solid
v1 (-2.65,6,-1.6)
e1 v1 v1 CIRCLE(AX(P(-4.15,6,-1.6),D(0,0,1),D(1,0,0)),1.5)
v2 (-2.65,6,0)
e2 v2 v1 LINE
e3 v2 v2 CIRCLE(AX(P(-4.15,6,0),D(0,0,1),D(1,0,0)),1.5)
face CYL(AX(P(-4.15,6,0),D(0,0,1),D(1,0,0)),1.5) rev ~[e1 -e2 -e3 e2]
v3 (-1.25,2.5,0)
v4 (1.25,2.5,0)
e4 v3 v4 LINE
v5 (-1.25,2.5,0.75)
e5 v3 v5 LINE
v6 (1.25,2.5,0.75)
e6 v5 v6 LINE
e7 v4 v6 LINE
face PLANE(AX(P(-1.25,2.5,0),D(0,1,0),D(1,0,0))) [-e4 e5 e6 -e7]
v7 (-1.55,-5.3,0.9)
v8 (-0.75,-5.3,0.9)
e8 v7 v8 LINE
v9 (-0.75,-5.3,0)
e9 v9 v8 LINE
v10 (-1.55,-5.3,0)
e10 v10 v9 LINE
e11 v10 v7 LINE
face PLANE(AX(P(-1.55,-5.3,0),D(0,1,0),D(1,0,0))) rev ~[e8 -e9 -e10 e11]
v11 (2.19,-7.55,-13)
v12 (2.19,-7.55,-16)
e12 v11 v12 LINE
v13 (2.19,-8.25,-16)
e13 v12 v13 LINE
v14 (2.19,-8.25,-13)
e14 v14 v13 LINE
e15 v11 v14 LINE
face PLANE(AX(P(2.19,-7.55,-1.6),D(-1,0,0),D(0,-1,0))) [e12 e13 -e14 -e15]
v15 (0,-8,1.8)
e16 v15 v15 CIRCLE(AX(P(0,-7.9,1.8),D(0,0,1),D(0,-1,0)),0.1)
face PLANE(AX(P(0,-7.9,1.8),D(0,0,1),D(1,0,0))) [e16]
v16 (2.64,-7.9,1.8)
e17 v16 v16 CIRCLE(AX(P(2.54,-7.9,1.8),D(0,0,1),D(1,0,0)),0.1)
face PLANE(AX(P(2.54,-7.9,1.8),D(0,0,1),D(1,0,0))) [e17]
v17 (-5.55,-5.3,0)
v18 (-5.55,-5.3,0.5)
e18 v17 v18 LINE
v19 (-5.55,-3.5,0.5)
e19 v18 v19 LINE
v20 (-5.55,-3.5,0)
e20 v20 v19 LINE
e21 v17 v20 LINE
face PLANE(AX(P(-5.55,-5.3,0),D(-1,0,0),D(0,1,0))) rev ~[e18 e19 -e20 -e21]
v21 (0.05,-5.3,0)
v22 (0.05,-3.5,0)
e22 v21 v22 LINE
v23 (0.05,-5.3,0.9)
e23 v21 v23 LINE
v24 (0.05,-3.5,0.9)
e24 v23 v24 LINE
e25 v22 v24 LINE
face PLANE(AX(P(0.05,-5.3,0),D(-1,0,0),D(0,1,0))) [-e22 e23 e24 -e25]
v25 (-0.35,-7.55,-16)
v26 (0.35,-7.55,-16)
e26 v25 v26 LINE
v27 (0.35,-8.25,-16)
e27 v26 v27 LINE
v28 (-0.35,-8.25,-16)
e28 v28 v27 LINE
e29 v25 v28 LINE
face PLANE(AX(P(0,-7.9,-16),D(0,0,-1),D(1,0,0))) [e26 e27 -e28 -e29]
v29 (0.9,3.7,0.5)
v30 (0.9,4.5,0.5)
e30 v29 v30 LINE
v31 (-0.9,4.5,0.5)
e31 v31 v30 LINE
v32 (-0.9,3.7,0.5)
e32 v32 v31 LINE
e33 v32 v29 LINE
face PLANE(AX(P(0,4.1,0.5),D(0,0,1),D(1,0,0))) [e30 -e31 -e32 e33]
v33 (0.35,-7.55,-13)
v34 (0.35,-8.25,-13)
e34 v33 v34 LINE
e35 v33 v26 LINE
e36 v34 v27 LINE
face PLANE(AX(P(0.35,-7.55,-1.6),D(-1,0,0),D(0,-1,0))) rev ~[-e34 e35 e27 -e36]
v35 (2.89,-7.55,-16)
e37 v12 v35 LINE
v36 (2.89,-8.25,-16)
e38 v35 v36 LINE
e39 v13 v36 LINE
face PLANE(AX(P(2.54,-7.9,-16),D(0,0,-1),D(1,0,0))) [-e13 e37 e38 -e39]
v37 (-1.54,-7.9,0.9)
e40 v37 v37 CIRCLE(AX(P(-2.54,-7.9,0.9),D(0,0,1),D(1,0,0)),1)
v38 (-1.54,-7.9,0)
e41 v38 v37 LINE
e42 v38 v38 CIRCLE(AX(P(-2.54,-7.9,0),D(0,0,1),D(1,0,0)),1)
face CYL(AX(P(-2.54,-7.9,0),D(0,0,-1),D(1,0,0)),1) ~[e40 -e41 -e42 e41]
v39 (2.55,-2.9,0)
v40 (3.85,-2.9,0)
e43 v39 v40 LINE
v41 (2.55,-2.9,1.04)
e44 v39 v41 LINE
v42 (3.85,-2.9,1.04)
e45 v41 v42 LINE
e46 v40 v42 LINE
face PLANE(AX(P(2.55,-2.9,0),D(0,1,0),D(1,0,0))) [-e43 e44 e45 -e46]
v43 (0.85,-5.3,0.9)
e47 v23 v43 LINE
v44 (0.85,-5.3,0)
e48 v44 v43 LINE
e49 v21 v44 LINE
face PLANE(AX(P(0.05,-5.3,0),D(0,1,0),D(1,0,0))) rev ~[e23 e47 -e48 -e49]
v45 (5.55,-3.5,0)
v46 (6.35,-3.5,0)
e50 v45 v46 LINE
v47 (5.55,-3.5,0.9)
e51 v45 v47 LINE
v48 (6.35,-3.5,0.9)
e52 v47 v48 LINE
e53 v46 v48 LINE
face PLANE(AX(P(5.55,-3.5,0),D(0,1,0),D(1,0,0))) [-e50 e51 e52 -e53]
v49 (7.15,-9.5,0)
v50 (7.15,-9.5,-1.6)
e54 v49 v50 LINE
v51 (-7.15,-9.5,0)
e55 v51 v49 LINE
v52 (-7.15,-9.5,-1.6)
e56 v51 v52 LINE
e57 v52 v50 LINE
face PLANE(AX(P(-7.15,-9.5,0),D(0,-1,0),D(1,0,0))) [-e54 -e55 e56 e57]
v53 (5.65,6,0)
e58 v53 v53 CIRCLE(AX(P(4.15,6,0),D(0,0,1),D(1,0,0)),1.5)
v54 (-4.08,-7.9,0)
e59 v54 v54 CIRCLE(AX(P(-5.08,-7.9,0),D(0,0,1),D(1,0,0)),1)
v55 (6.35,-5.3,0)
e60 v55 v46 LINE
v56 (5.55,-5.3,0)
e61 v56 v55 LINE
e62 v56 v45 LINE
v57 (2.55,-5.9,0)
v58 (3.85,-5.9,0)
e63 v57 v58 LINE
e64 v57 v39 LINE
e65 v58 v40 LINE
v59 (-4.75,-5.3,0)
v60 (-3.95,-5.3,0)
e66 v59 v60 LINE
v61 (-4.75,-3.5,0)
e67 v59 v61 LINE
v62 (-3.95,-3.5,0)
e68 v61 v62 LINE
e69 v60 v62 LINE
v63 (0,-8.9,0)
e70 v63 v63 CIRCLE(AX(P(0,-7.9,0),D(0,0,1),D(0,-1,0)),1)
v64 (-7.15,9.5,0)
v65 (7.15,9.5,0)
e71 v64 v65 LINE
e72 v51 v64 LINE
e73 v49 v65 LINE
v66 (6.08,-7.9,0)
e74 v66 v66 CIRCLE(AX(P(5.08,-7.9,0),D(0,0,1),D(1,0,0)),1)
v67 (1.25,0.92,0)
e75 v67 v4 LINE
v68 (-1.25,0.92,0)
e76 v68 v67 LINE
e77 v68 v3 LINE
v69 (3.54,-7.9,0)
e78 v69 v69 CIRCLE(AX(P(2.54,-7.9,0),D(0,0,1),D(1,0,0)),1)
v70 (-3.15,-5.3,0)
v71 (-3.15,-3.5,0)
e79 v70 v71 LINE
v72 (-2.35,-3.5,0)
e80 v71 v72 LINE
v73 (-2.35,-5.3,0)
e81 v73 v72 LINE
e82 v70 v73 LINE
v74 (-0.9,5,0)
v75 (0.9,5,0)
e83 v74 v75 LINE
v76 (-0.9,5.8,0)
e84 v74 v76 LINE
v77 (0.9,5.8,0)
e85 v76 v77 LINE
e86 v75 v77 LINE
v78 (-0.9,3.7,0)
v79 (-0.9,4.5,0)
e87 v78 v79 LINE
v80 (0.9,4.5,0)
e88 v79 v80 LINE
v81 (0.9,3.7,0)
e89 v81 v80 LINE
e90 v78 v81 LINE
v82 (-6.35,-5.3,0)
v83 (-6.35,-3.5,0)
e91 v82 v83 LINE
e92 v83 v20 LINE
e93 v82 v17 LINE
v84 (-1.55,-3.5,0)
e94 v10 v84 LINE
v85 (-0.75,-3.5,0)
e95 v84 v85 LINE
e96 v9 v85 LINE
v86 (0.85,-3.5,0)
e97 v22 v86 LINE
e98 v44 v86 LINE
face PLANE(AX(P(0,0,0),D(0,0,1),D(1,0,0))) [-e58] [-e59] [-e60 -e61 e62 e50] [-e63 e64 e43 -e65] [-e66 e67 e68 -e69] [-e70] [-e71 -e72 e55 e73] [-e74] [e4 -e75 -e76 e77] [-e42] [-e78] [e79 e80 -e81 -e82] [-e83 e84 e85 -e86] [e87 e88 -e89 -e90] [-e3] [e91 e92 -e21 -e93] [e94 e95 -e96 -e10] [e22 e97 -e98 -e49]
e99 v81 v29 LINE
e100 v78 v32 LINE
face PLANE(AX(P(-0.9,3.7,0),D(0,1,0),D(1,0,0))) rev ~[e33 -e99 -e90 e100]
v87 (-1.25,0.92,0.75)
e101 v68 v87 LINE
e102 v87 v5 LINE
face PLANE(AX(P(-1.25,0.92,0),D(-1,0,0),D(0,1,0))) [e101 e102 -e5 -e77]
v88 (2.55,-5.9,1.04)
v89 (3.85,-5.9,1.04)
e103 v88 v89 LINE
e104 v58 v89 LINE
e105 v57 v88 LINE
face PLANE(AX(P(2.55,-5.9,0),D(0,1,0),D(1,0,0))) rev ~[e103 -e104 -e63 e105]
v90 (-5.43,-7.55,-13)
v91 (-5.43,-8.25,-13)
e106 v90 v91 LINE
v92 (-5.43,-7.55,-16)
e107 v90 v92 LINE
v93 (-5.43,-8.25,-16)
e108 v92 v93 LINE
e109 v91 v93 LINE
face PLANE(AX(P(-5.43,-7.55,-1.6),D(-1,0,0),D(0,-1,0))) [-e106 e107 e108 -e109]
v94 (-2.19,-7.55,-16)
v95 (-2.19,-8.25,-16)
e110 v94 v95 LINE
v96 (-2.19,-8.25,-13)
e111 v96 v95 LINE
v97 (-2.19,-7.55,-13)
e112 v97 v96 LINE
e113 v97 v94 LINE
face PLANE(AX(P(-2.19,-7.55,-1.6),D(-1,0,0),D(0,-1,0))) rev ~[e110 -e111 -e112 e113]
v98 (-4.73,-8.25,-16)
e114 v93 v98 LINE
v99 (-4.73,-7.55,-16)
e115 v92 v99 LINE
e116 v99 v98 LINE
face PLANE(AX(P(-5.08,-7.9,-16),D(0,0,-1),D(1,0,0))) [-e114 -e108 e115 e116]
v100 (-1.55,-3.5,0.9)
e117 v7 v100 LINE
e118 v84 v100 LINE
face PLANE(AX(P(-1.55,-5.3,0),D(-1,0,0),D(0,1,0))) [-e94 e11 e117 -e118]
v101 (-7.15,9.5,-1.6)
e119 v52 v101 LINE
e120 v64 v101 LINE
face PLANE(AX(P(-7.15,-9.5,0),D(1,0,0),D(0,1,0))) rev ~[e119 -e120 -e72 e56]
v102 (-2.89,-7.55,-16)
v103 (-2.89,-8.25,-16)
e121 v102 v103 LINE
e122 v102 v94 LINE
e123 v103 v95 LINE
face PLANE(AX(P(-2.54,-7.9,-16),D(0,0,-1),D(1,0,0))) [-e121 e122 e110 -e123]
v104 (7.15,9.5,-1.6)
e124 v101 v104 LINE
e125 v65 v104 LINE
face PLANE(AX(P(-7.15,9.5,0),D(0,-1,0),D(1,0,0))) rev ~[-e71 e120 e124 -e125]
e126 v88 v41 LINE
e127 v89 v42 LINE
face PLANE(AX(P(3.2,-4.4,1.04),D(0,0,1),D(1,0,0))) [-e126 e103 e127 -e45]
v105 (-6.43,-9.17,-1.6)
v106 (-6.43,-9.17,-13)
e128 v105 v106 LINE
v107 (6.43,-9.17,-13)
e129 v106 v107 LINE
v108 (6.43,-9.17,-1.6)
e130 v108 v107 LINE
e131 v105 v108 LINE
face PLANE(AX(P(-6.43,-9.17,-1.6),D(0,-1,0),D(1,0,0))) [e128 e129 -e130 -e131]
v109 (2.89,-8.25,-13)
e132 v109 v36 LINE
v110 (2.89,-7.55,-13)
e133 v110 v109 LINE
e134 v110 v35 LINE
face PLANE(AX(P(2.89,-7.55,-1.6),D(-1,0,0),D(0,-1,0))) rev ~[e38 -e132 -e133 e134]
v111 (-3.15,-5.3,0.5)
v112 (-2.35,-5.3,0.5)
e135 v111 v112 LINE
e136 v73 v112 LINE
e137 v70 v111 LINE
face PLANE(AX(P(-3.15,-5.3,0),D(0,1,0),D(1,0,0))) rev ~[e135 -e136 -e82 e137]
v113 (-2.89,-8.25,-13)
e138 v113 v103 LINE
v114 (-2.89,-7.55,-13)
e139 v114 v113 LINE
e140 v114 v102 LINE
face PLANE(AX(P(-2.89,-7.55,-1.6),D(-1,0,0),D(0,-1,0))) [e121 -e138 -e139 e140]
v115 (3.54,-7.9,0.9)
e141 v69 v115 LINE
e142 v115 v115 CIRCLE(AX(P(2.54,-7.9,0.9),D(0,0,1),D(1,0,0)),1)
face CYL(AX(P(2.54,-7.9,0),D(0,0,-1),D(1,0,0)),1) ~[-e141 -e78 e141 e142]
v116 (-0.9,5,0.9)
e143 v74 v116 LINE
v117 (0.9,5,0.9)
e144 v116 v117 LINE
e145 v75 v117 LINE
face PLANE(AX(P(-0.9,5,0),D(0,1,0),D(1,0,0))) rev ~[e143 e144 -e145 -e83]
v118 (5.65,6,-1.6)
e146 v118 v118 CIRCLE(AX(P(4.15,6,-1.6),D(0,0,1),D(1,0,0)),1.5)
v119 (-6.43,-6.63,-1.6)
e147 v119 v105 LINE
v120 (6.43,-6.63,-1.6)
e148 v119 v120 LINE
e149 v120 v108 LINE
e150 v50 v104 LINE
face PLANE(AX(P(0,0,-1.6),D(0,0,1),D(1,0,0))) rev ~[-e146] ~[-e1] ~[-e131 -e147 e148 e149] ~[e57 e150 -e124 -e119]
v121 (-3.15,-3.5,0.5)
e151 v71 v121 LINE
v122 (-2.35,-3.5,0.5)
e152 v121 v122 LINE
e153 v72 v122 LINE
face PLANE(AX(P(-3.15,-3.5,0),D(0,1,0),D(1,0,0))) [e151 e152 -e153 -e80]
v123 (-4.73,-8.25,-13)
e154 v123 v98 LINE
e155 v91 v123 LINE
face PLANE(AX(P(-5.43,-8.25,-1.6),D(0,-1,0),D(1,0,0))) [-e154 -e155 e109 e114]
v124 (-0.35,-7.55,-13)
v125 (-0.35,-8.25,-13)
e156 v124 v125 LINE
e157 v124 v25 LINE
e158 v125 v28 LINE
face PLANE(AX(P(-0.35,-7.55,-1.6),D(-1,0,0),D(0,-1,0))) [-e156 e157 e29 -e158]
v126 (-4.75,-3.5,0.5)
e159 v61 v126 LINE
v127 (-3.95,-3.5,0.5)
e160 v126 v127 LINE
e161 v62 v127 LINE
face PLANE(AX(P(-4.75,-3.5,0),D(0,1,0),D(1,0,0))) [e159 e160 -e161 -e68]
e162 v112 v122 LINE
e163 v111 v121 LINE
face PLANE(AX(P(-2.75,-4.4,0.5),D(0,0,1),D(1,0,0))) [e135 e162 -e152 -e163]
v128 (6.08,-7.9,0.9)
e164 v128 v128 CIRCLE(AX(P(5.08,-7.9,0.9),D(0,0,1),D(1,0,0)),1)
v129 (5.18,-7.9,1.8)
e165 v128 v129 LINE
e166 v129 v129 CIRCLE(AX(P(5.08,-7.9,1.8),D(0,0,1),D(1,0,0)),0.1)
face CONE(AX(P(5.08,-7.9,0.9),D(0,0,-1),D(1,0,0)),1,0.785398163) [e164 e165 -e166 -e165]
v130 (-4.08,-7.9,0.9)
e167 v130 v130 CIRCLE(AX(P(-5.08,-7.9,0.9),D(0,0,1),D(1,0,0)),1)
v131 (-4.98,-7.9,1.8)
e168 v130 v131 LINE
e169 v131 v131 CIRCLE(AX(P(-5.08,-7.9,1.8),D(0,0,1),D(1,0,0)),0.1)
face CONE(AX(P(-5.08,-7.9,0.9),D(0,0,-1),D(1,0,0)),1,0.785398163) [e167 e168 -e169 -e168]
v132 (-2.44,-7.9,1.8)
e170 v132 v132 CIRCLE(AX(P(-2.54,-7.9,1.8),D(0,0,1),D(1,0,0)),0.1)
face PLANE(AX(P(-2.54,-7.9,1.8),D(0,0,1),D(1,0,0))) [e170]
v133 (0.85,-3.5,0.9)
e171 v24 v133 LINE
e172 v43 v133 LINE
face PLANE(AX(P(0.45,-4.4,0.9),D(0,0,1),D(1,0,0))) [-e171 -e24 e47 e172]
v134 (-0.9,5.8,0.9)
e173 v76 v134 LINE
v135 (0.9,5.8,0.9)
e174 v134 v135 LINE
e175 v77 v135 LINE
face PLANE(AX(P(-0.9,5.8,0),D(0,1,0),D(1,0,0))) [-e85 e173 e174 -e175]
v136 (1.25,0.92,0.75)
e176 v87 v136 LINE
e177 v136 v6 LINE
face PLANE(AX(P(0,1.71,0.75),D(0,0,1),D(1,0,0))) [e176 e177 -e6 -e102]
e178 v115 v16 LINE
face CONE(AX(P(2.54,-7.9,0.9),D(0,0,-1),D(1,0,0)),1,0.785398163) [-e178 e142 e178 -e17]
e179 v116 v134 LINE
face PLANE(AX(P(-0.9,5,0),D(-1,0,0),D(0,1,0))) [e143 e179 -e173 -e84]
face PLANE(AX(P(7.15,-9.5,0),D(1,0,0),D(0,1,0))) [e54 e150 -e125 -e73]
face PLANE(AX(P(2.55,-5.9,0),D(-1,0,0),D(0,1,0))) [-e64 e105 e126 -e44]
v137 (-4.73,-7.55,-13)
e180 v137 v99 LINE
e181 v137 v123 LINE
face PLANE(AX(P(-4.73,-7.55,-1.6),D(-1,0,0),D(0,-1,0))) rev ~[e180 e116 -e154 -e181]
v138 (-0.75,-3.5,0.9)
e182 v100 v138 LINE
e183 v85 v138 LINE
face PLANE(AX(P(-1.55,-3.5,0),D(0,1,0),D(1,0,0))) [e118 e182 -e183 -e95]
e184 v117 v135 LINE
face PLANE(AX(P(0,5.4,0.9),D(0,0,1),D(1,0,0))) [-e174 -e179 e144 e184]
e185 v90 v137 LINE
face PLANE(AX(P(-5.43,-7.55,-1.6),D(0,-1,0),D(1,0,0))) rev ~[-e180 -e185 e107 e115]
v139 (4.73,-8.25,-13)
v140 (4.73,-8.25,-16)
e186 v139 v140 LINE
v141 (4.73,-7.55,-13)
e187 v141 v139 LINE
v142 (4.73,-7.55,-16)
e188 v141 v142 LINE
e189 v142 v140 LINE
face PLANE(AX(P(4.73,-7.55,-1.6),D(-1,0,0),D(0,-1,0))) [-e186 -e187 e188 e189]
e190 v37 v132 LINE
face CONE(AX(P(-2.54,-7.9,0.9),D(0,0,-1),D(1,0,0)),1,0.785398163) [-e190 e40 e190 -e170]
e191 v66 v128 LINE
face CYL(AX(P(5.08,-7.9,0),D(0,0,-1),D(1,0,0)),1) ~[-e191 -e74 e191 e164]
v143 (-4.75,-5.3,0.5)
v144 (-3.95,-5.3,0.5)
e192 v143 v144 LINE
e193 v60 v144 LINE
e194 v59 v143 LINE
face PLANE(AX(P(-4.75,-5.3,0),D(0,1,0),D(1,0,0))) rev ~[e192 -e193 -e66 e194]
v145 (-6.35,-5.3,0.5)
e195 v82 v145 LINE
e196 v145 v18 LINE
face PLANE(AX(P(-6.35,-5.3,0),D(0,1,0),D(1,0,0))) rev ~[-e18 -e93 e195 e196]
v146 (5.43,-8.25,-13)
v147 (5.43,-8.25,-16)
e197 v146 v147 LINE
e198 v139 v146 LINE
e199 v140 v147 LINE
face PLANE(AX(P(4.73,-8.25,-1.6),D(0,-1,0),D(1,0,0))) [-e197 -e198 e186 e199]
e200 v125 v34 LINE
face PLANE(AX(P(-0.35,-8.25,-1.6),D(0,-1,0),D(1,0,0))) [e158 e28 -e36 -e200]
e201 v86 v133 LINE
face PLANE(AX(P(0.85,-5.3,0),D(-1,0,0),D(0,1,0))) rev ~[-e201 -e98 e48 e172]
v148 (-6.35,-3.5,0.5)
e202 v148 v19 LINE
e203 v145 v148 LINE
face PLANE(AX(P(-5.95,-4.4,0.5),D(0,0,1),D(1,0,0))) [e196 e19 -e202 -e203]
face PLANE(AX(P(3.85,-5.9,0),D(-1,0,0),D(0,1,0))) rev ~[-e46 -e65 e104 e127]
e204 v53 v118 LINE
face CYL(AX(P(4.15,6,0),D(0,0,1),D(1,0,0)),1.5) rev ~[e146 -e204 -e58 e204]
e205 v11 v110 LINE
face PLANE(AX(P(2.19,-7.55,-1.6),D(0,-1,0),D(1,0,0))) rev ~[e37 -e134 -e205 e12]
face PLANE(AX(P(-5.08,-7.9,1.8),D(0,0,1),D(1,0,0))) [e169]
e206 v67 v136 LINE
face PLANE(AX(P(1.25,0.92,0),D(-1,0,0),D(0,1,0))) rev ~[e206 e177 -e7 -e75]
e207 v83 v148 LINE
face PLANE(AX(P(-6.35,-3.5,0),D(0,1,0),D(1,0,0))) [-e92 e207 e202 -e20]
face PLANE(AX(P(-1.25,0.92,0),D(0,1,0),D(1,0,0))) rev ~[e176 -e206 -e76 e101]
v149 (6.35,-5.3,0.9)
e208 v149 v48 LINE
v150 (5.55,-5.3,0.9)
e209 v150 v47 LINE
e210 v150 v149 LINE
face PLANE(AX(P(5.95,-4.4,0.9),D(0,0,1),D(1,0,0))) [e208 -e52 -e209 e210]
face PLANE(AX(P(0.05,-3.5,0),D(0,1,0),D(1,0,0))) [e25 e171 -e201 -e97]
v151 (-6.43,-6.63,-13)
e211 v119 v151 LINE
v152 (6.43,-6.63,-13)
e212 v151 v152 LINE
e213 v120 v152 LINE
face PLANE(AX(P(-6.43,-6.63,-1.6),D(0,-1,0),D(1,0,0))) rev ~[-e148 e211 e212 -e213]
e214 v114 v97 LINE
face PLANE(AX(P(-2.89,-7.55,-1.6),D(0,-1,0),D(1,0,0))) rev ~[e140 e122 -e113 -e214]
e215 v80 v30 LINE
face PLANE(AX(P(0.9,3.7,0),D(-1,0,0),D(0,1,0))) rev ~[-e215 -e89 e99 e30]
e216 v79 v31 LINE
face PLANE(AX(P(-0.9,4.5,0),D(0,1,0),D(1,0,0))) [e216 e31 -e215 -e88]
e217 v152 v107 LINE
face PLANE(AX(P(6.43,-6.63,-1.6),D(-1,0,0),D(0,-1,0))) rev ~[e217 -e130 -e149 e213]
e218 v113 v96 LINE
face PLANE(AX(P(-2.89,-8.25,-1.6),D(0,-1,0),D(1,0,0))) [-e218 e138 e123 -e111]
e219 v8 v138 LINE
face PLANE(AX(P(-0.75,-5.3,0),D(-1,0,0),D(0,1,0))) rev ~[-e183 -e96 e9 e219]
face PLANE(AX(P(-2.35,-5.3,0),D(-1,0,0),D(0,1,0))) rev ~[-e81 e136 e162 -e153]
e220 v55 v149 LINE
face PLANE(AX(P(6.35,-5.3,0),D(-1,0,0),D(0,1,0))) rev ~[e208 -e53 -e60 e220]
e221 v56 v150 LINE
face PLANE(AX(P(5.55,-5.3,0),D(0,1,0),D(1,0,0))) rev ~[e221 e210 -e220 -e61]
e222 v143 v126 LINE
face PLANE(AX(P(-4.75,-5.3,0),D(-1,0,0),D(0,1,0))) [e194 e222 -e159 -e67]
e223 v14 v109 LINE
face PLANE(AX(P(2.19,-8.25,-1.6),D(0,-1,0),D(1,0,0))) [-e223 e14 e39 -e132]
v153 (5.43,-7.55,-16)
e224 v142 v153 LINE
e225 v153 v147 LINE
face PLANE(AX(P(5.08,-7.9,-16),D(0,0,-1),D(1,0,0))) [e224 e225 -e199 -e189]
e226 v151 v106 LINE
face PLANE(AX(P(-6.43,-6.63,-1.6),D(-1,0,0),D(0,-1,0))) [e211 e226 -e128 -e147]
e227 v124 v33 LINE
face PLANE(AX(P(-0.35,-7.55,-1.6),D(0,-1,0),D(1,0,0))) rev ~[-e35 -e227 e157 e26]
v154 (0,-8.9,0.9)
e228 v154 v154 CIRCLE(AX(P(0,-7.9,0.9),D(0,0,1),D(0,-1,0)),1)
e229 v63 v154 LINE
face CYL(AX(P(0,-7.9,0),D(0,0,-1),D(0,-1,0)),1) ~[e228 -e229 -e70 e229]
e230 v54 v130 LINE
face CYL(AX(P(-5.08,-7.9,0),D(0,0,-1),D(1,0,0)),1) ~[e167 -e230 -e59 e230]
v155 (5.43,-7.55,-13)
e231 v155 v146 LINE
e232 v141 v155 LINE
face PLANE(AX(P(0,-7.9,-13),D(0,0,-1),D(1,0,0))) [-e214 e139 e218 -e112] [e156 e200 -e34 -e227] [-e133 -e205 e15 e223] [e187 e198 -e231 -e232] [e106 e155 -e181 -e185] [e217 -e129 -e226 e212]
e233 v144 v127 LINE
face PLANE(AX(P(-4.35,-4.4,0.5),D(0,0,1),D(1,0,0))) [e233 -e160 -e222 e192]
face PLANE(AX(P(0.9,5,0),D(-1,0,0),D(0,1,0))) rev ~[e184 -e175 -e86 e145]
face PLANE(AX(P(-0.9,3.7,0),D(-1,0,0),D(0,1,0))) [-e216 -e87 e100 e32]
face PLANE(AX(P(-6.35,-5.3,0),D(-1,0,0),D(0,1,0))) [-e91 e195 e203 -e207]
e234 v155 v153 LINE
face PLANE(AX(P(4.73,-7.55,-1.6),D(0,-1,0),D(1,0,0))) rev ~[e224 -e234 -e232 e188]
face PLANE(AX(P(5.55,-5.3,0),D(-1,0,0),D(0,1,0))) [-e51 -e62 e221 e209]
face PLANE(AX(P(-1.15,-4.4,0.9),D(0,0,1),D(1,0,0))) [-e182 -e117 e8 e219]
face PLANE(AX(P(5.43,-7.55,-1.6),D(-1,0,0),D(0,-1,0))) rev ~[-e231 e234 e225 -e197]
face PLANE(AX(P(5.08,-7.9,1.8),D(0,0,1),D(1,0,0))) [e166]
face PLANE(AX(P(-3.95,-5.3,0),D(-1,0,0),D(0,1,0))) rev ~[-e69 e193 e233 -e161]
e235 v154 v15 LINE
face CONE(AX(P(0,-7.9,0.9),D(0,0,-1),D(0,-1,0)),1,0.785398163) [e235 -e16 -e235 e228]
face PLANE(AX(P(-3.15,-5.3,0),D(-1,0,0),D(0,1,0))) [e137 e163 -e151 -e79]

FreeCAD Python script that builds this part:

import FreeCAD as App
import Part
import Sketcher
from FreeCAD import Vector


def edges_at(feature, points):
    """Names of the edges that pass closest to the given points."""
    edges = feature.Shape.Edges
    near = lambda p: min(range(len(edges)), key=lambda i: edges[i].distToShape(Part.Vertex(*p))[0])
    return sorted({f"Edge{near(p) + 1}" for p in points})

doc = App.newDocument("Part")
body = doc.addObject("PartDesign::Body", "Body")

# Sketch on XY plane
sketch1 = doc.addObject("Sketcher::SketchObject", "Sketch")
body.addObject(sketch1)
sketch1.AttachmentSupport = (doc.XY_Plane, [""])
sketch1.MapMode = "FlatFace"
sketch1.addGeometry([
    Part.LineSegment(Vector(-7.15, 9.5, 0), Vector(-7.15, -9.5, 0)),  # 0
    Part.LineSegment(Vector(-7.15, -9.5, 0), Vector(7.15, -9.5, 0)),  # 1
    Part.LineSegment(Vector(7.15, -9.5, 0), Vector(7.15, 9.5, 0)),  # 2
    Part.LineSegment(Vector(7.15, 9.5, 0), Vector(-7.15, 9.5, 0)),  # 3
    Part.Circle(Vector(-4.15, 6, 0), Vector(0, 0, 1), 1.5),  # 4
    Part.Circle(Vector(4.15, 6, 0), Vector(0, 0, 1), 1.5),  # 5
], False)
sketch1.addConstraint([
    Sketcher.Constraint("Coincident", 0, 2, 1, 1),
    Sketcher.Constraint("Coincident", 1, 2, 2, 1),
    Sketcher.Constraint("Coincident", 2, 2, 3, 1),
    Sketcher.Constraint("Coincident", 3, 2, 0, 1),
    Sketcher.Constraint("Vertical", 0),
    Sketcher.Constraint("Horizontal", 1),
    Sketcher.Constraint("Vertical", 2),
    Sketcher.Constraint("Horizontal", 3),
    Sketcher.Constraint("Equal", 4, 5),
    Sketcher.Constraint("Symmetric", 0, 2, 2, 2, -1, 1),
    Sketcher.Constraint("Symmetric", 4, 3, 5, 3, -2),
    Sketcher.Constraint("Diameter", 4, 3.0),
    Sketcher.Constraint("DistanceY", 0, 2, 0, 1, 19.0),
    Sketcher.Constraint("DistanceX", 1, 1, 1, 2, 14.3),
    Sketcher.Constraint("DistanceY", -1, 1, 4, 3, 6.0),
    Sketcher.Constraint("DistanceX", 0, 2, 4, 3, 3.0),
])
pad1 = doc.addObject("PartDesign::Pad", "Pad")
body.addObject(pad1)
pad1.Profile = sketch1
pad1.Length = 1.6
pad1.Reversed = True

# Sketch on XY plane
sketch2 = doc.addObject("Sketcher::SketchObject", "Sketch001")
body.addObject(sketch2)
sketch2.AttachmentSupport = (doc.XY_Plane, [""])
sketch2.MapMode = "FlatFace"
sketch2.addGeometry([
    Part.LineSegment(Vector(-1.25, 2.5, 0), Vector(-1.25, 0.92, 0)),
    Part.LineSegment(Vector(-1.25, 0.92, 0), Vector(1.25, 0.92, 0)),
    Part.LineSegment(Vector(1.25, 0.92, 0), Vector(1.25, 2.5, 0)),
    Part.LineSegment(Vector(1.25, 2.5, 0), Vector(-1.25, 2.5, 0)),
], False)
sketch2.addConstraint([
    Sketcher.Constraint("Coincident", 0, 2, 1, 1),
    Sketcher.Constraint("Coincident", 1, 2, 2, 1),
    Sketcher.Constraint("Coincident", 2, 2, 3, 1),
    Sketcher.Constraint("Coincident", 3, 2, 0, 1),
    Sketcher.Constraint("Vertical", 0),
    Sketcher.Constraint("Horizontal", 1),
    Sketcher.Constraint("Vertical", 2),
    Sketcher.Constraint("Horizontal", 3),
    Sketcher.Constraint("DistanceX", 1, 1, 1, 2, 2.5),
    Sketcher.Constraint("DistanceY", 0, 2, 0, 1, 1.58),
    Sketcher.Constraint("DistanceY", -1, 1, 2, 2, 2.5),
    Sketcher.Constraint("DistanceX", 0, 2, -1, 1, 1.25),
])
pad2 = doc.addObject("PartDesign::Pad", "Pad001")
body.addObject(pad2)
pad2.Profile = sketch2
pad2.Length = 0.75

# Sketch on XY plane
sketch3 = doc.addObject("Sketcher::SketchObject", "Sketch002")
body.addObject(sketch3)
sketch3.AttachmentSupport = (doc.XY_Plane, [""])
sketch3.MapMode = "FlatFace"
sketch3.addGeometry([
    Part.LineSegment(Vector(-0.9, 5.8, 0), Vector(-0.9, 5, 0)),  # 0
    Part.LineSegment(Vector(-0.9, 5, 0), Vector(0.9, 5, 0)),  # 1
    Part.LineSegment(Vector(0.9, 5, 0), Vector(0.9, 5.8, 0)),  # 2
    Part.LineSegment(Vector(0.9, 5.8, 0), Vector(-0.9, 5.8, 0)),  # 3
    Part.LineSegment(Vector(5.55, -3.5, 0), Vector(5.55, -5.3, 0)),  # 4
    Part.LineSegment(Vector(5.55, -5.3, 0), Vector(6.35, -5.3, 0)),  # 5
    Part.LineSegment(Vector(6.35, -5.3, 0), Vector(6.35, -3.5, 0)),  # 6
    Part.LineSegment(Vector(6.35, -3.5, 0), Vector(5.55, -3.5, 0)),  # 7
    Part.LineSegment(Vector(0.05, -3.5, 0), Vector(0.05, -5.3, 0)),  # 8
    Part.LineSegment(Vector(0.05, -5.3, 0), Vector(0.85, -5.3, 0)),  # 9
    Part.LineSegment(Vector(0.85, -5.3, 0), Vector(0.85, -3.5, 0)),  # 10
    Part.LineSegment(Vector(0.85, -3.5, 0), Vector(0.05, -3.5, 0)),  # 11
    Part.LineSegment(Vector(-1.55, -3.5, 0), Vector(-1.55, -5.3, 0)),  # 12
    Part.LineSegment(Vector(-1.55, -5.3, 0), Vector(-0.75, -5.3, 0)),  # 13
    Part.LineSegment(Vector(-0.75, -5.3, 0), Vector(-0.75, -3.5, 0)),  # 14
    Part.LineSegment(Vector(-0.75, -3.5, 0), Vector(-1.55, -3.5, 0)),  # 15
], False)
sketch3.addConstraint([
    Sketcher.Constraint("Coincident", 0, 2, 1, 1),
    Sketcher.Constraint("Coincident", 1, 2, 2, 1),
    Sketcher.Constraint("Coincident", 2, 2, 3, 1),
    Sketcher.Constraint("Coincident", 3, 2, 0, 1),
    Sketcher.Constraint("Coincident", 4, 2, 5, 1),
    Sketcher.Constraint("Coincident", 5, 2, 6, 1),
    Sketcher.Constraint("Coincident", 6, 2, 7, 1),
    Sketcher.Constraint("Coincident", 7, 2, 4, 1),
    Sketcher.Constraint("Coincident", 8, 2, 9, 1),
    Sketcher.Constraint("Coincident", 9, 2, 10, 1),
    Sketcher.Constraint("Coincident", 10, 2, 11, 1),
    Sketcher.Constraint("Coincident", 11, 2, 8, 1),
    Sketcher.Constraint("Coincident", 12, 2, 13, 1),
    Sketcher.Constraint("Coincident", 13, 2, 14, 1),
    Sketcher.Constraint("Coincident", 14, 2, 15, 1),
    Sketcher.Constraint("Coincident", 15, 2, 12, 1),
    Sketcher.Constraint("Vertical", 0),
    Sketcher.Constraint("Horizontal", 1),
    Sketcher.Constraint("Vertical", 2),
    Sketcher.Constraint("Horizontal", 3),
    Sketcher.Constraint("Vertical", 4),
    Sketcher.Constraint("Horizontal", 5),
    Sketcher.Constraint("Vertical", 6),
    Sketcher.Constraint("Horizontal", 7),
    Sketcher.Constraint("Vertical", 8),
    Sketcher.Constraint("Horizontal", 9),
    Sketcher.Constraint("Vertical", 10),
    Sketcher.Constraint("Horizontal", 11),
    Sketcher.Constraint("Vertical", 12),
    Sketcher.Constraint("Horizontal", 13),
    Sketcher.Constraint("Vertical", 14),
    Sketcher.Constraint("Horizontal", 15),
    Sketcher.Constraint("Horizontal", 5, 2, 8, 2),
    Sketcher.Constraint("Horizontal", 7, 2, 10, 2),
    Sketcher.Constraint("Horizontal", 9, 2, 12, 2),
    Sketcher.Constraint("Horizontal", 11, 2, 14, 2),
    Sketcher.Constraint("Equal", 7, 9),
    Sketcher.Constraint("Equal", 11, 13),
    Sketcher.Constraint("Equal", 15, 0),
    Sketcher.Constraint("Equal", 3, 4),
    Sketcher.Constraint("DistanceX", 1, 1, 1, 2, 1.8),
    Sketcher.Constraint("DistanceX", 5, 1, 5, 2, 0.8),
    Sketcher.Constraint("DistanceY", -1, 1, 0, 2, 5.0),
    Sketcher.Constraint("DistanceX", 0, 2, -1, 1, 0.9),
    Sketcher.Constraint("DistanceY", 4, 2, -1, 1, 5.3),
    Sketcher.Constraint("DistanceX", 8, 2, 4, 2, 5.5),
    Sketcher.Constraint("DistanceX", 12, 2, 8, 2, 1.6),
    Sketcher.Constraint("DistanceX", -1, 1, 4, 2, 5.55),
])
pad3 = doc.addObject("PartDesign::Pad", "Pad002")
body.addObject(pad3)
pad3.Profile = sketch3
pad3.Length = 0.9

# Sketch on XY plane
sketch4 = doc.addObject("Sketcher::SketchObject", "Sketch003")
body.addObject(sketch4)
sketch4.AttachmentSupport = (doc.XY_Plane, [""])
sketch4.MapMode = "FlatFace"
sketch4.addGeometry([
    Part.LineSegment(Vector(-0.9, 4.5, 0), Vector(-0.9, 3.7, 0)),  # 0
    Part.LineSegment(Vector(-0.9, 3.7, 0), Vector(0.9, 3.7, 0)),  # 1
    Part.LineSegment(Vector(0.9, 3.7, 0), Vector(0.9, 4.5, 0)),  # 2
    Part.LineSegment(Vector(0.9, 4.5, 0), Vector(-0.9, 4.5, 0)),  # 3
    Part.LineSegment(Vector(-3.15, -3.5, 0), Vector(-3.15, -5.3, 0)),  # 4
    Part.LineSegment(Vector(-3.15, -5.3, 0), Vector(-2.35, -5.3, 0)),  # 5
    Part.LineSegment(Vector(-2.35, -5.3, 0), Vector(-2.35, -3.5, 0)),  # 6
    Part.LineSegment(Vector(-2.35, -3.5, 0), Vector(-3.15, -3.5, 0)),  # 7
    Part.LineSegment(Vector(-4.75, -3.5, 0), Vector(-4.75, -5.3, 0)),  # 8
    Part.LineSegment(Vector(-4.75, -5.3, 0), Vector(-3.95, -5.3, 0)),  # 9
    Part.LineSegment(Vector(-3.95, -5.3, 0), Vector(-3.95, -3.5, 0)),  # 10
    Part.LineSegment(Vector(-3.95, -3.5, 0), Vector(-4.75, -3.5, 0)),  # 11
    Part.LineSegment(Vector(-6.35, -3.5, 0), Vector(-6.35, -5.3, 0)),  # 12
    Part.LineSegment(Vector(-6.35, -5.3, 0), Vector(-5.55, -5.3, 0)),  # 13
    Part.LineSegment(Vector(-5.55, -5.3, 0), Vector(-5.55, -3.5, 0)),  # 14
    Part.LineSegment(Vector(-5.55, -3.5, 0), Vector(-6.35, -3.5, 0)),  # 15
], False)
sketch4.addConstraint([
    Sketcher.Constraint("Coincident", 0, 2, 1, 1),
    Sketcher.Constraint("Coincident", 1, 2, 2, 1),
    Sketcher.Constraint("Coincident", 2, 2, 3, 1),
    Sketcher.Constraint("Coincident", 3, 2, 0, 1),
    Sketcher.Constraint("Coincident", 4, 2, 5, 1),
    Sketcher.Constraint("Coincident", 5, 2, 6, 1),
    Sketcher.Constraint("Coincident", 6, 2, 7, 1),
    Sketcher.Constraint("Coincident", 7, 2, 4, 1),
    Sketcher.Constraint("Coincident", 8, 2, 9, 1),
    Sketcher.Constraint("Coincident", 9, 2, 10, 1),
    Sketcher.Constraint("Coincident", 10, 2, 11, 1),
    Sketcher.Constraint("Coincident", 11, 2, 8, 1),
    Sketcher.Constraint("Coincident", 12, 2, 13, 1),
    Sketcher.Constraint("Coincident", 13, 2, 14, 1),
    Sketcher.Constraint("Coincident", 14, 2, 15, 1),
    Sketcher.Constraint("Coincident", 15, 2, 12, 1),
    Sketcher.Constraint("Vertical", 0),
    Sketcher.Constraint("Horizontal", 1),
    Sketcher.Constraint("Vertical", 2),
    Sketcher.Constraint("Horizontal", 3),
    Sketcher.Constraint("Vertical", 4),
    Sketcher.Constraint("Horizontal", 5),
    Sketcher.Constraint("Vertical", 6),
    Sketcher.Constraint("Horizontal", 7),
    Sketcher.Constraint("Vertical", 8),
    Sketcher.Constraint("Horizontal", 9),
    Sketcher.Constraint("Vertical", 10),
    Sketcher.Constraint("Horizontal", 11),
    Sketcher.Constraint("Vertical", 12),
    Sketcher.Constraint("Horizontal", 13),
    Sketcher.Constraint("Vertical", 14),
    Sketcher.Constraint("Horizontal", 15),
    Sketcher.Constraint("Horizontal", 5, 2, 8, 2),
    Sketcher.Constraint("Horizontal", 7, 2, 10, 2),
    Sketcher.Constraint("Horizontal", 9, 2, 12, 2),
    Sketcher.Constraint("Horizontal", 11, 2, 14, 2),
    Sketcher.Constraint("Equal", 7, 9),
    Sketcher.Constraint("Equal", 11, 13),
    Sketcher.Constraint("Equal", 15, 0),
    Sketcher.Constraint("Equal", 3, 4),
    Sketcher.Constraint("DistanceX", 1, 1, 1, 2, 1.8),
    Sketcher.Constraint("DistanceX", 5, 1, 5, 2, 0.8),
    Sketcher.Constraint("DistanceY", 4, 2, 0, 2, 9.0),
    Sketcher.Constraint("DistanceX", 0, 2, -1, 1, 0.9),
    Sketcher.Constraint("DistanceY", -1, 1, 0, 2, 3.7),
    Sketcher.Constraint("DistanceX", 8, 2, 4, 2, 1.6),
    Sketcher.Constraint("DistanceX", 12, 2, 8, 2, 1.6),
    Sketcher.Constraint("DistanceX", 4, 2, -1, 1, 3.15),
])
pad4 = doc.addObject("PartDesign::Pad", "Pad003")
body.addObject(pad4)
pad4.Profile = sketch4
pad4.Length = 0.5

# Sketch on XY plane
sketch5 = doc.addObject("Sketcher::SketchObject", "Sketch004")
body.addObject(sketch5)
sketch5.AttachmentSupport = (doc.XY_Plane, [""])
sketch5.MapMode = "FlatFace"
sketch5.addGeometry([
    Part.LineSegment(Vector(2.55, -2.9, 0), Vector(2.55, -5.9, 0)),
    Part.LineSegment(Vector(2.55, -5.9, 0), Vector(3.85, -5.9, 0)),
    Part.LineSegment(Vector(3.85, -5.9, 0), Vector(3.85, -2.9, 0)),
    Part.LineSegment(Vector(3.85, -2.9, 0), Vector(2.55, -2.9, 0)),
], False)
sketch5.addConstraint([
    Sketcher.Constraint("Coincident", 0, 2, 1, 1),
    Sketcher.Constraint("Coincident", 1, 2, 2, 1),
    Sketcher.Constraint("Coincident", 2, 2, 3, 1),
    Sketcher.Constraint("Coincident", 3, 2, 0, 1),
    Sketcher.Constraint("Vertical", 0),
    Sketcher.Constraint("Horizontal", 1),
    Sketcher.Constraint("Vertical", 2),
    Sketcher.Constraint("Horizontal", 3),
    Sketcher.Constraint("DistanceY", 0, 2, 0, 1, 3.0),
    Sketcher.Constraint("DistanceX", 1, 1, 1, 2, 1.3),
    Sketcher.Constraint("DistanceY", 0, 2, -1, 1, 5.9),
    Sketcher.Constraint("DistanceX", -1, 1, 0, 2, 2.55),
])
pad5 = doc.addObject("PartDesign::Pad", "Pad004")
body.addObject(pad5)
pad5.Profile = sketch5
pad5.Length = 1.04

# Sketch on XY plane
sketch6 = doc.addObject("Sketcher::SketchObject", "Sketch005")
body.addObject(sketch6)
sketch6.AttachmentSupport = (doc.XY_Plane, [""])
sketch6.MapMode = "FlatFace"
sketch6.addGeometry([
    Part.Circle(Vector(-5.08, -7.9, 0), Vector(0, 0, 1), 1),  # 0
    Part.Circle(Vector(-2.54, -7.9, 0), Vector(0, 0, 1), 1),  # 1
    Part.Circle(Vector(0, -7.9, 0), Vector(0, 0, 1), 1),  # 2
    Part.Circle(Vector(2.54, -7.9, 0), Vector(0, 0, 1), 1),  # 3
    Part.Circle(Vector(5.08, -7.9, 0), Vector(0, 0, 1), 1),  # 4
], False)
sketch6.addConstraint([
    Sketcher.Constraint("Equal", 0, 1),
    Sketcher.Constraint("Equal", 1, 2),
    Sketcher.Constraint("Equal", 2, 3),
    Sketcher.Constraint("Equal", 3, 4),
    Sketcher.Constraint("Symmetric", 1, 3, 3, 3, -2),
    Sketcher.Constraint("Symmetric", 0, 3, 4, 3, -2),
    Sketcher.Constraint("PointOnObject", 2, 3, -2),
    Sketcher.Constraint("Horizontal", 0, 3, 1, 3),
    Sketcher.Constraint("Horizontal", 1, 3, 2, 3),
    Sketcher.Constraint("Diameter", 0, 2.0),
    Sketcher.Constraint("DistanceY", 0, 3, -1, 1, 7.9),
    Sketcher.Constraint("DistanceX", 0, 3, -1, 1, 5.08),
    Sketcher.Constraint("DistanceX", 1, 3, -1, 1, 2.54),
])
pad6 = doc.addObject("PartDesign::Pad", "Pad005")
body.addObject(pad6)
pad6.Profile = sketch6
pad6.Length = 1.8
doc.recompute()

chamfer = doc.addObject("PartDesign::Chamfer", "Chamfer")
body.addObject(chamfer)
chamfer.Base = (pad6, edges_at(pad6, [
    (-6.08, -7.9, 1.8),
    (-3.54, -7.9, 1.8),
    (0, -6.9, 1.8),
    (1.54, -7.9, 1.8),
    (4.08, -7.9, 1.8),
]))
chamfer.ChamferType = "Two distances"
chamfer.Size = 0.9
chamfer.Size2 = 0.9

# Sketch on XY plane
sketch7 = doc.addObject("Sketcher::SketchObject", "Sketch006")
body.addObject(sketch7)
sketch7.AttachmentSupport = (doc.XY_Plane, [""])
sketch7.MapMode = "FlatFace"
sketch7.AttachmentOffset = App.Placement(Vector(0, 0, -1.6), App.Rotation())
sketch7.addGeometry([
    Part.LineSegment(Vector(-5.43, -8.25, 0), Vector(-5.43, -7.55, 0)),  # 0
    Part.LineSegment(Vector(-5.43, -7.55, 0), Vector(-4.73, -7.55, 0)),  # 1
    Part.LineSegment(Vector(-4.73, -7.55, 0), Vector(-4.73, -8.25, 0)),  # 2
    Part.LineSegment(Vector(-4.73, -8.25, 0), Vector(-5.43, -8.25, 0)),  # 3
    Part.LineSegment(Vector(-2.89, -8.25, 0), Vector(-2.89, -7.55, 0)),  # 4
    Part.LineSegment(Vector(-2.89, -7.55, 0), Vector(-2.19, -7.55, 0)),  # 5
    Part.LineSegment(Vector(-2.19, -7.55, 0), Vector(-2.19, -8.25, 0)),  # 6
    Part.LineSegment(Vector(-2.19, -8.25, 0), Vector(-2.89, -8.25, 0)),  # 7
    Part.LineSegment(Vector(-0.35, -8.25, 0), Vector(-0.35, -7.55, 0)),  # 8
    Part.LineSegment(Vector(-0.35, -7.55, 0), Vector(0.35, -7.55, 0)),  # 9
    Part.LineSegment(Vector(0.35, -7.55, 0), Vector(0.35, -8.25, 0)),  # 10
    Part.LineSegment(Vector(0.35, -8.25, 0), Vector(-0.35, -8.25, 0)),  # 11
    Part.LineSegment(Vector(2.19, -8.25, 0), Vector(2.19, -7.55, 0)),  # 12
    Part.LineSegment(Vector(2.19, -7.55, 0), Vector(2.89, -7.55, 0)),  # 13
    Part.LineSegment(Vector(2.89, -7.55, 0), Vector(2.89, -8.25, 0)),  # 14
    Part.LineSegment(Vector(2.89, -8.25, 0), Vector(2.19, -8.25, 0)),  # 15
    Part.LineSegment(Vector(4.73, -8.25, 0), Vector(4.73, -7.55, 0)),  # 16
    Part.LineSegment(Vector(4.73, -7.55, 0), Vector(5.43, -7.55, 0)),  # 17
    Part.LineSegment(Vector(5.43, -7.55, 0), Vector(5.43, -8.25, 0)),  # 18
    Part.LineSegment(Vector(5.43, -8.25, 0), Vector(4.73, -8.25, 0)),  # 19
], False)
sketch7.addConstraint([
    Sketcher.Constraint("Coincident", 0, 2, 1, 1),
    Sketcher.Constraint("Coincident", 1, 2, 2, 1),
    Sketcher.Constraint("Coincident", 2, 2, 3, 1),
    Sketcher.Constraint("Coincident", 3, 2, 0, 1),
    Sketcher.Constraint("Coincident", 4, 2, 5, 1),
    Sketcher.Constraint("Coincident", 5, 2, 6, 1),
    Sketcher.Constraint("Coincident", 6, 2, 7, 1),
    Sketcher.Constraint("Coincident", 7, 2, 4, 1),
    Sketcher.Constraint("Coincident", 8, 2, 9, 1),
    Sketcher.Constraint("Coincident", 9, 2, 10, 1),
    Sketcher.Constraint("Coincident", 10, 2, 11, 1),
    Sketcher.Constraint("Coincident", 11, 2, 8, 1),
    Sketcher.Constraint("Coincident", 12, 2, 13, 1),
    Sketcher.Constraint("Coincident", 13, 2, 14, 1),
    Sketcher.Constraint("Coincident", 14, 2, 15, 1),
    Sketcher.Constraint("Coincident", 15, 2, 12, 1),
    Sketcher.Constraint("Coincident", 16, 2, 17, 1),
    Sketcher.Constraint("Coincident", 17, 2, 18, 1),
    Sketcher.Constraint("Coincident", 18, 2, 19, 1),
    Sketcher.Constraint("Coincident", 19, 2, 16, 1),
    Sketcher.Constraint("Vertical", 0),
    Sketcher.Constraint("Horizontal", 1),
    Sketcher.Constraint("Vertical", 2),
    Sketcher.Constraint("Horizontal", 3),
    Sketcher.Constraint("Vertical", 4),
    Sketcher.Constraint("Horizontal", 5),
    Sketcher.Constraint("Vertical", 6),
    Sketcher.Constraint("Horizontal", 7),
    Sketcher.Constraint("Vertical", 8),
    Sketcher.Constraint("Horizontal", 9),
    Sketcher.Constraint("Vertical", 10),
    Sketcher.Constraint("Horizontal", 11),
    Sketcher.Constraint("Vertical", 12),
    Sketcher.Constraint("Horizontal", 13),
    Sketcher.Constraint("Vertical", 14),
    Sketcher.Constraint("Horizontal", 15),
    Sketcher.Constraint("Vertical", 16),
    Sketcher.Constraint("Horizontal", 17),
    Sketcher.Constraint("Vertical", 18),
    Sketcher.Constraint("Horizontal", 19),
    Sketcher.Constraint("Symmetric", 5, 2, 12, 2, -2),
    Sketcher.Constraint("Symmetric", 7, 2, 14, 2, -2),
    Sketcher.Constraint("Symmetric", 1, 2, 16, 2, -2),
    Sketcher.Constraint("Symmetric", 3, 2, 18, 2, -2),
    Sketcher.Constraint("Horizontal", 1, 2, 4, 2),
    Sketcher.Constraint("Horizontal", 3, 2, 6, 2),
    Sketcher.Constraint("Horizontal", 5, 2, 8, 2),
    Sketcher.Constraint("Horizontal", 7, 2, 10, 2),
    Sketcher.Constraint("Equal", 3, 5),
    Sketcher.Constraint("Equal", 7, 9),
    Sketcher.Constraint("Equal", 19, 0),
    Sketcher.Constraint("DistanceX", 1, 1, 1, 2, 0.7),
    Sketcher.Constraint("DistanceX", 0, 2, -1, 1, 5.43),
    Sketcher.Constraint("DistanceY", 0, 2, -1, 1, 7.55),
    Sketcher.Constraint("DistanceX", 4, 2, -1, 1, 2.89),
    Sketcher.Constraint("DistanceX", 8, 2, -1, 1, 0.35),
])
pad7 = doc.addObject("PartDesign::Pad", "Pad006")
body.addObject(pad7)
pad7.Profile = sketch7
pad7.Length = 14.4
pad7.Reversed = True

# Sketch on XY plane
sketch8 = doc.addObject("Sketcher::SketchObject", "Sketch007")
body.addObject(sketch8)
sketch8.AttachmentSupport = (doc.XY_Plane, [""])
sketch8.MapMode = "FlatFace"
sketch8.AttachmentOffset = App.Placement(Vector(0, 0, -1.6), App.Rotation())
sketch8.addGeometry([
    Part.LineSegment(Vector(-6.43, -9.17, 0), Vector(-6.43, -6.63, 0)),  # 0
    Part.LineSegment(Vector(-6.43, -6.63, 0), Vector(6.43, -6.63, 0)),  # 1
    Part.LineSegment(Vector(6.43, -6.63, 0), Vector(6.43, -9.17, 0)),  # 2
    Part.LineSegment(Vector(6.43, -9.17, 0), Vector(-6.43, -9.17, 0)),  # 3
    Part.LineSegment(Vector(-4.73, -7.55, 0), Vector(-5.43, -7.55, 0)),  # 4
    Part.LineSegment(Vector(-5.43, -7.55, 0), Vector(-5.43, -8.25, 0)),  # 5
    Part.LineSegment(Vector(-5.43, -8.25, 0), Vector(-4.73, -8.25, 0)),  # 6
    Part.LineSegment(Vector(-4.73, -8.25, 0), Vector(-4.73, -7.55, 0)),  # 7
    Part.LineSegment(Vector(-2.19, -7.55, 0), Vector(-2.89, -7.55, 0)),  # 8
    Part.LineSegment(Vector(-2.89, -7.55, 0), Vector(-2.89, -8.25, 0)),  # 9
    Part.LineSegment(Vector(-2.89, -8.25, 0), Vector(-2.19, -8.25, 0)),  # 10
    Part.LineSegment(Vector(-2.19, -8.25, 0), Vector(-2.19, -7.55, 0)),  # 11
    Part.LineSegment(Vector(0.35, -7.55, 0), Vector(-0.35, -7.55, 0)),  # 12
    Part.LineSegment(Vector(-0.35, -7.55, 0), Vector(-0.35, -8.25, 0)),  # 13
    Part.LineSegment(Vector(-0.35, -8.25, 0), Vector(0.35, -8.25, 0)),  # 14
    Part.LineSegment(Vector(0.35, -8.25, 0), Vector(0.35, -7.55, 0)),  # 15
    Part.LineSegment(Vector(2.89, -7.55, 0), Vector(2.19, -7.55, 0)),  # 16
    Part.LineSegment(Vector(2.19, -7.55, 0), Vector(2.19, -8.25, 0)),  # 17
    Part.LineSegment(Vector(2.19, -8.25, 0), Vector(2.89, -8.25, 0)),  # 18
    Part.LineSegment(Vector(2.89, -8.25, 0), Vector(2.89, -7.55, 0)),  # 19
    Part.LineSegment(Vector(5.43, -7.55, 0), Vector(4.73, -7.55, 0)),  # 20
    Part.LineSegment(Vector(4.73, -7.55, 0), Vector(4.73, -8.25, 0)),  # 21
    Part.LineSegment(Vector(4.73, -8.25, 0), Vector(5.43, -8.25, 0)),  # 22
    Part.LineSegment(Vector(5.43, -8.25, 0), Vector(5.43, -7.55, 0)),  # 23
], False)
sketch8.addConstraint([
    Sketcher.Constraint("Coincident", 0, 2, 1, 1),
    Sketcher.Constraint("Coincident", 1, 2, 2, 1),
    Sketcher.Constraint("Coincident", 2, 2, 3, 1),
    Sketcher.Constraint("Coincident", 3, 2, 0, 1),
    Sketcher.Constraint("Coincident", 4, 2, 5, 1),
    Sketcher.Constraint("Coincident", 5, 2, 6, 1),
    Sketcher.Constraint("Coincident", 6, 2, 7, 1),
    Sketcher.Constraint("Coincident", 7, 2, 4, 1),
    Sketcher.Constraint("Coincident", 8, 2, 9, 1),
    Sketcher.Constraint("Coincident", 9, 2, 10, 1),
    Sketcher.Constraint("Coincident", 10, 2, 11, 1),
    Sketcher.Constraint("Coincident", 11, 2, 8, 1),
    Sketcher.Constraint("Coincident", 12, 2, 13, 1),
    Sketcher.Constraint("Coincident", 13, 2, 14, 1),
    Sketcher.Constraint("Coincident", 14, 2, 15, 1),
    Sketcher.Constraint("Coincident", 15, 2, 12, 1),
    Sketcher.Constraint("Coincident", 16, 2, 17, 1),
    Sketcher.Constraint("Coincident", 17, 2, 18, 1),
    Sketcher.Constraint("Coincident", 18, 2, 19, 1),
    Sketcher.Constraint("Coincident", 19, 2, 16, 1),
    Sketcher.Constraint("Coincident", 20, 2, 21, 1),
    Sketcher.Constraint("Coincident", 21, 2, 22, 1),
    Sketcher.Constraint("Coincident", 22, 2, 23, 1),
    Sketcher.Constraint("Coincident", 23, 2, 20, 1),
    Sketcher.Constraint("Vertical", 0),
    Sketcher.Constraint("Horizontal", 1),
    Sketcher.Constraint("Vertical", 2),
    Sketcher.Constraint("Horizontal", 3),
    Sketcher.Constraint("Horizontal", 4),
    Sketcher.Constraint("Vertical", 5),
    Sketcher.Constraint("Horizontal", 6),
    Sketcher.Constraint("Vertical", 7),
    Sketcher.Constraint("Horizontal", 8),
    Sketcher.Constraint("Vertical", 9),
    Sketcher.Constraint("Horizontal", 10),
    Sketcher.Constraint("Vertical", 11),
    Sketcher.Constraint("Horizontal", 12),
    Sketcher.Constraint("Vertical", 13),
    Sketcher.Constraint("Horizontal", 14),
    Sketcher.Constraint("Vertical", 15),
    Sketcher.Constraint("Horizontal", 16),
    Sketcher.Constraint("Vertical", 17),
    Sketcher.Constraint("Horizontal", 18),
    Sketcher.Constraint("Vertical", 19),
    Sketcher.Constraint("Horizontal", 20),
    Sketcher.Constraint("Vertical", 21),
    Sketcher.Constraint("Horizontal", 22),
    Sketcher.Constraint("Vertical", 23),
    Sketcher.Constraint("Symmetric", 11, 2, 16, 2, -2),
    Sketcher.Constraint("Symmetric", 9, 2, 18, 2, -2),
    Sketcher.Constraint("Symmetric", 7, 2, 20, 2, -2),
    Sketcher.Constraint("Symmetric", 5, 2, 22, 2, -2),
    Sketcher.Constraint("Horizontal", 7, 2, 8, 2),
    Sketcher.Constraint("Horizontal", 6, 2, 9, 2),
    Sketcher.Constraint("Horizontal", 11, 2, 12, 2),
    Sketcher.Constraint("Horizontal", 10, 2, 13, 2),
    Sketcher.Constraint("Equal", 6, 8),
    Sketcher.Constraint("Equal", 10, 12),
    Sketcher.Constraint("Equal", 22, 5),
    Sketcher.Constraint("DistanceX", 4, 2, 4, 1, 0.7),
    Sketcher.Constraint("DistanceX", 0, 2, 4, 2, 1.0),
    Sketcher.Constraint("DistanceX", 22, 2, 2, 2, 1.0),
    Sketcher.Constraint("DistanceX", 1, 1, 1, 2, 12.86),
    Sketcher.Constraint("DistanceY", 0, 1, 0, 2, 2.54),
    Sketcher.Constraint("DistanceY", 0, 2, -1, 1, 6.63),
    Sketcher.Constraint("DistanceY", 4, 2, -1, 1, 7.55),
    Sketcher.Constraint("DistanceX", 8, 2, -1, 1, 2.89),
    Sketcher.Constraint("DistanceX", 12, 2, -1, 1, 0.35),
])
pad8 = doc.addObject("PartDesign::Pad", "Pad007")
body.addObject(pad8)
pad8.Profile = sketch8
pad8.Length = 11.4
pad8.Reversed = True

doc.recompute()
